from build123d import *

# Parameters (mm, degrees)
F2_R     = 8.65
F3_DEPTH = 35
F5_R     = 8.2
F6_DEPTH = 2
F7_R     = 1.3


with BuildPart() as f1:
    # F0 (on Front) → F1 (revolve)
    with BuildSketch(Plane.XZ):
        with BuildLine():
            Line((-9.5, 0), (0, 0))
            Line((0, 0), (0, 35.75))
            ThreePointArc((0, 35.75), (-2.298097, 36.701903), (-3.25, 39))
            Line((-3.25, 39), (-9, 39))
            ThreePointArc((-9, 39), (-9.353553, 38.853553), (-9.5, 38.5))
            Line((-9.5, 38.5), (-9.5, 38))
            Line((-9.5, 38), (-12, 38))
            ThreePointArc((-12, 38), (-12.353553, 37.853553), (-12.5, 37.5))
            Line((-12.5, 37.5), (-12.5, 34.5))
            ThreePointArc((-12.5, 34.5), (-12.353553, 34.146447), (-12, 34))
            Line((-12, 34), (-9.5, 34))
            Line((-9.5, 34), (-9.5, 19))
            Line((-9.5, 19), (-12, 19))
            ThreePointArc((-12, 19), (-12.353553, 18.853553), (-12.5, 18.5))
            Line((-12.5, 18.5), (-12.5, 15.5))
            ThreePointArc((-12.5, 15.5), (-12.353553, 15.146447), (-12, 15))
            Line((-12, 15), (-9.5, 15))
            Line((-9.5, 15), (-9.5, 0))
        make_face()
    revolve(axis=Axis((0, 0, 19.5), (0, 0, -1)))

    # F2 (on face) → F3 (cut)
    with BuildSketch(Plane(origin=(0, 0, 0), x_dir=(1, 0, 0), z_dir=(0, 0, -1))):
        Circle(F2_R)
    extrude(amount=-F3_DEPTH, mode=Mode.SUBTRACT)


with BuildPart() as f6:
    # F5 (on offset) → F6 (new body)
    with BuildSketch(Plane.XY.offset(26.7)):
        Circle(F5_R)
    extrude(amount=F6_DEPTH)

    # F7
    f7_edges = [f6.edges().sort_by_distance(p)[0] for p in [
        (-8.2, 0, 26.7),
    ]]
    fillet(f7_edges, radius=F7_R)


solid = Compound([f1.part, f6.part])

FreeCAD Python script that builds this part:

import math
import FreeCAD as App
import Part
import Sketcher
Q = App.Units.Quantity


def edges_at(feature, points):
    """Names of the edges that pass closest to the given points."""
    edges = feature.Shape.Edges
    near = lambda p: min(range(len(edges)), key=lambda i: edges[i].distToShape(Part.Vertex(*p))[0])
    return sorted({f"Edge{near(p) + 1}" for p in points})

doc = App.newDocument("Part")
params = doc.addObject("Spreadsheet::Sheet", "Params")
for row, (alias, value) in enumerate([
    ("sketch1_radius", "0.500001 mm"),
    ("sketch1_height", "3 mm"),
    ("sketch1_height2", "15 mm"),
    ("sketch1_radius2", "3.25 mm"),
    ("sketch1_width", "9.5 mm"),
    ("revolution_angle", "360 deg"),
    ("sketch2_diameter", "17.3 mm"),
    ("pocket1_length", "35 mm"),
    ("sketch3_diameter", "16.4 mm"),
    ("pad1_length", "2 mm"),
    ("fillet_radius", "1.3 mm"),
], start=1):
    params.set(f"A{row}", alias)
    params.set(f"B{row}", "=" + value)
    params.setAlias(f"B{row}", alias)

body = doc.addObject("PartDesign::Body", "Body")

# Sketch on XZ plane
sketch1 = body.newObject("Sketcher::SketchObject", "Sketch")
sketch1.AttachmentSupport = (doc.getObject("XZ_Plane"), [""])
sketch1.MapMode = "FlatFace"
sketch1.addGeometry([
    Part.LineSegment(App.Vector(-9.5, 0, 0), App.Vector(0, 0, 0)),  # 0
    Part.LineSegment(App.Vector(0, 0, 0), App.Vector(0, 35.75, 0)),  # 1
    Part.ArcOfCircle(Part.Circle(App.Vector(0, 39, 0), App.Vector(0, 0, 1), 3.25), math.radians(-179.999998), math.radians(-90.000002)),  # 2
    Part.LineSegment(App.Vector(-3.25, 39, 0), App.Vector(-9, 39, 0)),  # 3
    Part.ArcOfCircle(Part.Circle(App.Vector(-8.999999, 38.499999, 0), App.Vector(0, 0, 1), 0.500001), math.radians(90.000153), math.radians(179.999847)),  # 4
    Part.LineSegment(App.Vector(-9.5, 38.5, 0), App.Vector(-9.5, 38, 0)),  # 5
    Part.LineSegment(App.Vector(-9.5, 38, 0), App.Vector(-12, 38, 0)),  # 6
    Part.ArcOfCircle(Part.Circle(App.Vector(-11.999999, 37.499999, 0), App.Vector(0, 0, 1), 0.500001), math.radians(90.000153), math.radians(179.999847)),  # 7
    Part.LineSegment(App.Vector(-12.5, 37.5, 0), App.Vector(-12.5, 34.5, 0)),  # 8
    Part.ArcOfCircle(Part.Circle(App.Vector(-11.999999, 34.500001, 0), App.Vector(0, 0, 1), 0.500001), math.radians(-179.999847), math.radians(-90.000153)),  # 9
    Part.LineSegment(App.Vector(-12, 34, 0), App.Vector(-9.5, 34, 0)),  # 10
    Part.LineSegment(App.Vector(-9.5, 34, 0), App.Vector(-9.5, 19, 0)),  # 11
    Part.LineSegment(App.Vector(-9.5, 19, 0), App.Vector(-12, 19, 0)),  # 12
    Part.ArcOfCircle(Part.Circle(App.Vector(-11.999999, 18.499999, 0), App.Vector(0, 0, 1), 0.500001), math.radians(90.000153), math.radians(179.999847)),  # 13
    Part.LineSegment(App.Vector(-12.5, 18.5, 0), App.Vector(-12.5, 15.5, 0)),  # 14
    Part.ArcOfCircle(Part.Circle(App.Vector(-11.999999, 15.500001, 0), App.Vector(0, 0, 1), 0.500001), math.radians(-179.999847), math.radians(-90.000153)),  # 15
    Part.LineSegment(App.Vector(-12, 15, 0), App.Vector(-9.5, 15, 0)),  # 16
    Part.LineSegment(App.Vector(-9.5, 15, 0), App.Vector(-9.5, 0, 0)),  # 17
], False)
sketch1.addConstraint([
    Sketcher.Constraint("Coincident", 0, 2, 1, 1),
    Sketcher.Constraint("Coincident", 1, 2, 2, 2),
    Sketcher.Constraint("Coincident", 2, 1, 3, 1),
    Sketcher.Constraint("Coincident", 3, 2, 4, 1),
    Sketcher.Constraint("Coincident", 4, 2, 5, 1),
    Sketcher.Constraint("Coincident", 5, 2, 6, 1),
    Sketcher.Constraint("Coincident", 6, 2, 7, 1),
    Sketcher.Constraint("Coincident", 7, 2, 8, 1),
    Sketcher.Constraint("Coincident", 8, 2, 9, 1),
    Sketcher.Constraint("Coincident", 9, 2, 10, 1),
    Sketcher.Constraint("Coincident", 10, 2, 11, 1),
    Sketcher.Constraint("Coincident", 11, 2, 12, 1),
    Sketcher.Constraint("Coincident", 12, 2, 13, 1),
    Sketcher.Constraint("Coincident", 13, 2, 14, 1),
    Sketcher.Constraint("Coincident", 14, 2, 15, 1),
    Sketcher.Constraint("Coincident", 15, 2, 16, 1),
    Sketcher.Constraint("Coincident", 16, 2, 17, 1),
    Sketcher.Constraint("Coincident", 17, 2, 0, 1),
    Sketcher.Constraint("Horizontal", 0),
    Sketcher.Constraint("Vertical", 1),
    Sketcher.Constraint("Horizontal", 3),
    Sketcher.Constraint("Vertical", 5),
    Sketcher.Constraint("Horizontal", 6),
    Sketcher.Constraint("Vertical", 8),
    Sketcher.Constraint("Horizontal", 10),
    Sketcher.Constraint("Vertical", 11),
    Sketcher.Constraint("Horizontal", 12),
    Sketcher.Constraint("Vertical", 14),
    Sketcher.Constraint("Horizontal", 16),
    Sketcher.Constraint("Vertical", 17),
    Sketcher.Constraint("Coincident", 0, 2, -1, 1),
    Sketcher.Constraint("Equal", 4, 7),
    Sketcher.Constraint("Equal", 7, 9),
    Sketcher.Constraint("Equal", 9, 13),
    Sketcher.Constraint("Equal", 13, 15),
    Sketcher.Constraint("PointOnObject", 2, 3, -2),
    Sketcher.Constraint("Horizontal", 9, 3, 8, 2),
    Sketcher.Constraint("Horizontal", 15, 3, 14, 2),
    Sketcher.Constraint("Vertical", 9, 3, 13, 3),
    Sketcher.Constraint("Vertical", 4, 3, 3, 2),
    Sketcher.Constraint("Vertical", 15, 3, 6, 2),
    Sketcher.Constraint("Vertical", 6, 2, 9, 2),
    Sketcher.Constraint("Vertical", 5, 2, 10, 2),
    Sketcher.Constraint("Vertical", 9, 2, 12, 2),
    Sketcher.Constraint("Vertical", 12, 2, 15, 2),
    Sketcher.Constraint("Vertical", 11, 2, 16, 2),
    Sketcher.Constraint("Equal", 8, 14),
    Sketcher.Constraint("Equal", 11, 17),
    Sketcher.Constraint("Radius", 4, Q("0.500001 mm")),
    Sketcher.Constraint("DistanceY", 8, 2, 8, 1, Q("3 mm")),
    Sketcher.Constraint("DistanceY", 11, 2, 11, 1, Q("15 mm")),
    Sketcher.Constraint("Radius", 2, Q("3.25 mm")),
    Sketcher.Constraint("DistanceX", 0, 1, 0, 2, Q("9.5 mm")),
    Sketcher.Constraint("DistanceX", 6, 2, 6, 1, Q("2.5 mm")),
    Sketcher.Constraint("DistanceY", 5, 2, 5, 1, Q("0.5 mm")),
    Sketcher.Constraint("DistanceY", -1, 1, 2, 3, Q("39 mm")),
    Sketcher.Constraint("DistanceY", -1, 1, 2, 1, Q("39 mm")),
    Sketcher.Constraint("DistanceY", -1, 1, 5, 2, Q("38 mm")),
    Sketcher.Constraint("DistanceY", -1, 1, 9, 2, Q("34 mm")),
])
sketch1.setExpression("Constraints[48]", "Params.sketch1_radius")
sketch1.setExpression("Constraints[49]", "Params.sketch1_height")
sketch1.setExpression("Constraints[50]", "Params.sketch1_height2")
sketch1.setExpression("Constraints[51]", "Params.sketch1_radius2")
sketch1.setExpression("Constraints[52]", "Params.sketch1_width")
revolution = body.newObject("PartDesign::Revolution", "Revolution")
revolution.Profile = sketch1
revolution.ReferenceAxis = (sketch1, ["V_Axis"])
revolution.setExpression("Angle", "Params.revolution_angle")

# Sketch on XY plane
sketch2 = body.newObject("Sketcher::SketchObject", "Sketch001")
sketch2.AttachmentSupport = (doc.getObject("XY_Plane"), [""])
sketch2.MapMode = "FlatFace"
sketch2.addGeometry(Part.Circle(App.Vector(0, 0, 0), App.Vector(0, 0, 1), 8.65), False)
sketch2.addConstraint([
    Sketcher.Constraint("Coincident", 0, 3, -1, 1),
    Sketcher.Constraint("Diameter", 0, Q("17.3 mm")),
])
sketch2.setExpression("Constraints[1]", "Params.sketch2_diameter")
pocket1 = body.newObject("PartDesign::Pocket", "Pocket")
pocket1.Profile = sketch2
pocket1.setExpression("Length", "Params.pocket1_length")
pocket1.Reversed = True
body2 = doc.addObject("PartDesign::Body", "Body001")

# Sketch on XY plane
sketch3 = body2.newObject("Sketcher::SketchObject", "Sketch002")
sketch3.AttachmentSupport = (doc.getObject("XY_Plane001"), [""])
sketch3.MapMode = "FlatFace"
sketch3.AttachmentOffset = App.Placement(App.Vector(0, 0, 26.7), App.Rotation())
sketch3.addGeometry(Part.Circle(App.Vector(0, 0, 0), App.Vector(0, 0, 1), 8.2), False)
sketch3.addConstraint([
    Sketcher.Constraint("Coincident", 0, 3, -1, 1),
    Sketcher.Constraint("Diameter", 0, Q("16.4 mm")),
])
sketch3.setExpression("Constraints[1]", "Params.sketch3_diameter")
pad1 = body2.newObject("PartDesign::Pad", "Pad")
pad1.Profile = sketch3
pad1.setExpression("Length", "Params.pad1_length")
doc.recompute()

fillet = body2.newObject("PartDesign::Fillet", "Fillet")
fillet.Base = (pad1, edges_at(pad1, [(-8.2, 0, 26.7)]))
fillet.setExpression("Radius", "Params.fillet_radius")

doc.recompute()
